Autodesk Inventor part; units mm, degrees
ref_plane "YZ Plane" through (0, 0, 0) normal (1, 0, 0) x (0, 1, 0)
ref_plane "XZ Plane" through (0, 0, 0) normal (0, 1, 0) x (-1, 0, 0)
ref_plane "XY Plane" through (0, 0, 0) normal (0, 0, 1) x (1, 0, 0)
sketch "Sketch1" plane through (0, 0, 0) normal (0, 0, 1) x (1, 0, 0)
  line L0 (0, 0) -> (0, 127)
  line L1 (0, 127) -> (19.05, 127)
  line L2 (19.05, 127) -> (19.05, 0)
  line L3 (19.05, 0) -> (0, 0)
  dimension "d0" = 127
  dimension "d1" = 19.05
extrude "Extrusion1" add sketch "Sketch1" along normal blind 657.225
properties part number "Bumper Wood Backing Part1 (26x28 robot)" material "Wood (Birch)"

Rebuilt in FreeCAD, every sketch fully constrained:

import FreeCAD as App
import Part
import Sketcher
from FreeCAD import Vector
Q = App.Units.Quantity

doc = App.newDocument("Part")
params = doc.addObject("Spreadsheet::Sheet", "Params")
for row, (alias, value) in enumerate([
    ("sketch1_height", "5 in"),
    ("sketch1_width", "0.75 in"),
    ("pad1_length", "25.875 in"),
], start=1):
    params.set(f"A{row}", alias)
    params.set(f"B{row}", "=" + value)
    params.setAlias(f"B{row}", alias)

body = doc.addObject("PartDesign::Body", "Body")

# Sketch on XY plane
sketch1 = body.newObject("Sketcher::SketchObject", "Sketch")
sketch1.AttachmentSupport = (doc.getObject("XY_Plane"), [""])
sketch1.MapMode = "FlatFace"
sketch1.addGeometry(Part.LineSegment(Vector(0, 127, 0), Vector(0, 0, 0)), False)
sketch1.addGeometry(Part.LineSegment(Vector(0, 0, 0), Vector(19.05, 0, 0)), False)
sketch1.addGeometry(Part.LineSegment(Vector(19.05, 0, 0), Vector(19.05, 127, 0)), False)
sketch1.addGeometry(Part.LineSegment(Vector(19.05, 127, 0), Vector(0, 127, 0)), False)
sketch1.addConstraint(Sketcher.Constraint("Coincident", 0, 2, 1, 1))
sketch1.addConstraint(Sketcher.Constraint("Coincident", 1, 2, 2, 1))
sketch1.addConstraint(Sketcher.Constraint("Coincident", 2, 2, 3, 1))
sketch1.addConstraint(Sketcher.Constraint("Coincident", 3, 2, 0, 1))
sketch1.addConstraint(Sketcher.Constraint("Vertical", 0))
sketch1.addConstraint(Sketcher.Constraint("Horizontal", 1))
sketch1.addConstraint(Sketcher.Constraint("Vertical", 2))
sketch1.addConstraint(Sketcher.Constraint("Horizontal", 3))
sketch1.addConstraint(Sketcher.Constraint("Coincident", 0, 2, -1, 1))
sketch1.addConstraint(Sketcher.Constraint("DistanceY", 0, 2, 0, 1, Q("5 in")))
sketch1.addConstraint(Sketcher.Constraint("DistanceX", 1, 1, 1, 2, Q("0.75 in")))
sketch1.setExpression("Constraints[9]", "Params.sketch1_height")
sketch1.setExpression("Constraints[10]", "Params.sketch1_width")
pad1 = body.newObject("PartDesign::Pad", "Pad")
pad1.Profile = sketch1
pad1.setExpression("Length", "Params.pad1_length")

doc.recompute()
